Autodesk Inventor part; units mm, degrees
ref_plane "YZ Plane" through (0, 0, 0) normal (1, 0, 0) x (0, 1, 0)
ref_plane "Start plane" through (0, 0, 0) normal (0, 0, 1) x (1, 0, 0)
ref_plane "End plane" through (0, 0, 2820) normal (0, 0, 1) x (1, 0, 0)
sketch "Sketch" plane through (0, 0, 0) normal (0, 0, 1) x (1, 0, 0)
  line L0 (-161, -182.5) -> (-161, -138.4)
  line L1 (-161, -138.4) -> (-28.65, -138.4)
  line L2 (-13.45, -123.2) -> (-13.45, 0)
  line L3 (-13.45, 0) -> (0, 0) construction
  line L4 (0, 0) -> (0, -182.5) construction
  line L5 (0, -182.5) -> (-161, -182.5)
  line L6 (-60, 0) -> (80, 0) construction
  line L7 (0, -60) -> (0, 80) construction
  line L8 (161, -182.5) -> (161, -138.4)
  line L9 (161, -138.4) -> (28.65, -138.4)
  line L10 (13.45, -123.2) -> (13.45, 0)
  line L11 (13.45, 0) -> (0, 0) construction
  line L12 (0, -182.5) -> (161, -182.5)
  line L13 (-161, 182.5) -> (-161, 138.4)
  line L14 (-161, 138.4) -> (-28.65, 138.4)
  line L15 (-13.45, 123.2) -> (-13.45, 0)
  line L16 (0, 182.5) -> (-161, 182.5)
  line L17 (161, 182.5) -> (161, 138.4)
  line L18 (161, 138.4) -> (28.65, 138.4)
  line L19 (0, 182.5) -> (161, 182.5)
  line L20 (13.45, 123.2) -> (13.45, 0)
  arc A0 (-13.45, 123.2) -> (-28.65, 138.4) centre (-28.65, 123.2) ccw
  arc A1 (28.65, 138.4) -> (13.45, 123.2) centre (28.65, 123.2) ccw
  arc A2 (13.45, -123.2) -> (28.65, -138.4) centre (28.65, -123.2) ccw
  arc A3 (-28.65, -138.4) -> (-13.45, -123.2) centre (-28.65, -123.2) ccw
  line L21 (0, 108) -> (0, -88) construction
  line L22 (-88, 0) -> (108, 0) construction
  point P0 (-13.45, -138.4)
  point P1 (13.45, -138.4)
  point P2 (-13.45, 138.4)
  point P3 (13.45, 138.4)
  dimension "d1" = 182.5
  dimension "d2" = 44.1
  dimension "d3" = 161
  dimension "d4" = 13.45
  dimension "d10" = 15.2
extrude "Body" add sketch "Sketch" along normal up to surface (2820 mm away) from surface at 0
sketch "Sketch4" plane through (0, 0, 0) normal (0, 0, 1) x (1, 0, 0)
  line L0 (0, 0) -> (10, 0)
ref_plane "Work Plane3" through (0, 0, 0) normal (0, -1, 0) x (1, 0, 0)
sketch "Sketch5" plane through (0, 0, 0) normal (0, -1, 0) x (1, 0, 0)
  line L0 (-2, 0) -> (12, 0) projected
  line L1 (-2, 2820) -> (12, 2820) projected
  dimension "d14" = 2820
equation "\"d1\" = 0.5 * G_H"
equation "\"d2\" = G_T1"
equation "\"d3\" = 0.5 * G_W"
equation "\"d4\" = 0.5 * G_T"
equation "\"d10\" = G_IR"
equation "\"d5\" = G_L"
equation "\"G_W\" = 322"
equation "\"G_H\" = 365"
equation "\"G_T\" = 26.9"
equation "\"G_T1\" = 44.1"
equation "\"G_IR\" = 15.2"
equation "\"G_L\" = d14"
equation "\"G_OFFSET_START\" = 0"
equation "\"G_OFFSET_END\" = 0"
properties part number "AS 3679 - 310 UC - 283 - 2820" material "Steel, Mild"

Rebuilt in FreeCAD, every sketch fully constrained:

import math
import FreeCAD as App
import Part
import Sketcher
from FreeCAD import Vector

doc = App.newDocument("Part")
body = doc.addObject("PartDesign::Body", "Body")

sketch1 = doc.addObject("Sketcher::SketchObject", "Sketch")
body.addObject(sketch1)
sketch1.AttachmentSupport = (doc.XY_Plane, [""])
sketch1.MapMode = "FlatFace"
sketch1.addGeometry(Part.LineSegment(Vector(-161, -138, 0), Vector(-161, -182, 0)), False)
sketch1.addGeometry(Part.LineSegment(Vector(-161, -182, 0), Vector(161, -182, 0)), False)
sketch1.addGeometry(Part.LineSegment(Vector(161, -182, 0), Vector(161, -138, 0)), False)
sketch1.addGeometry(Part.LineSegment(Vector(161, -138, 0), Vector(29, -138, 0)), False)
sketch1.addGeometry(Part.ArcOfCircle(Part.Circle(Vector(29, -123, 0), Vector(0, 0, 1), 15), math.radians(180), math.radians(270)), False)
sketch1.addGeometry(Part.LineSegment(Vector(13, -123, 0), Vector(13, 123, 0)), False)
sketch1.addGeometry(Part.ArcOfCircle(Part.Circle(Vector(29, 123, 0), Vector(0, 0, 1), 15), math.radians(90), math.radians(180)), False)
sketch1.addGeometry(Part.LineSegment(Vector(29, 138, 0), Vector(161, 138, 0)), False)
sketch1.addGeometry(Part.LineSegment(Vector(161, 138, 0), Vector(161, 182, 0)), False)
sketch1.addGeometry(Part.LineSegment(Vector(161, 182, 0), Vector(-161, 182, 0)), False)
sketch1.addGeometry(Part.LineSegment(Vector(-161, 182, 0), Vector(-161, 138, 0)), False)
sketch1.addGeometry(Part.LineSegment(Vector(-161, 138, 0), Vector(-29, 138, 0)), False)
sketch1.addGeometry(Part.ArcOfCircle(Part.Circle(Vector(-29, 123, 0), Vector(0, 0, 1), 15), math.radians(0), math.radians(90)), False)
sketch1.addGeometry(Part.LineSegment(Vector(-13, 123, 0), Vector(-13, -123, 0)), False)
sketch1.addGeometry(Part.ArcOfCircle(Part.Circle(Vector(-29, -123, 0), Vector(0, 0, 1), 15), math.radians(-90), math.radians(0)), False)
sketch1.addGeometry(Part.LineSegment(Vector(-29, -138, 0), Vector(-161, -138, 0)), False)
sketch1.addConstraint(Sketcher.Constraint("Coincident", 0, 2, 1, 1))
sketch1.addConstraint(Sketcher.Constraint("Coincident", 1, 2, 2, 1))
sketch1.addConstraint(Sketcher.Constraint("Coincident", 2, 2, 3, 1))
sketch1.addConstraint(Sketcher.Constraint("Tangent", 3, 2, 4, 2))
sketch1.addConstraint(Sketcher.Constraint("Tangent", 4, 1, 5, 1))
sketch1.addConstraint(Sketcher.Constraint("Tangent", 5, 2, 6, 2))
sketch1.addConstraint(Sketcher.Constraint("Tangent", 6, 1, 7, 1))
sketch1.addConstraint(Sketcher.Constraint("Coincident", 7, 2, 8, 1))
sketch1.addConstraint(Sketcher.Constraint("Coincident", 8, 2, 9, 1))
sketch1.addConstraint(Sketcher.Constraint("Coincident", 9, 2, 10, 1))
sketch1.addConstraint(Sketcher.Constraint("Coincident", 10, 2, 11, 1))
sketch1.addConstraint(Sketcher.Constraint("Tangent", 11, 2, 12, 2))
sketch1.addConstraint(Sketcher.Constraint("Tangent", 12, 1, 13, 1))
sketch1.addConstraint(Sketcher.Constraint("Tangent", 13, 2, 14, 2))
sketch1.addConstraint(Sketcher.Constraint("Tangent", 14, 1, 15, 1))
sketch1.addConstraint(Sketcher.Constraint("Coincident", 15, 2, 0, 1))
sketch1.addConstraint(Sketcher.Constraint("Vertical", 0))
sketch1.addConstraint(Sketcher.Constraint("Horizontal", 1))
sketch1.addConstraint(Sketcher.Constraint("Vertical", 2))
sketch1.addConstraint(Sketcher.Constraint("Horizontal", 3))
sketch1.addConstraint(Sketcher.Constraint("Vertical", 5))
sketch1.addConstraint(Sketcher.Constraint("Horizontal", 7))
sketch1.addConstraint(Sketcher.Constraint("Vertical", 8))
sketch1.addConstraint(Sketcher.Constraint("Horizontal", 9))
sketch1.addConstraint(Sketcher.Constraint("Vertical", 10))
sketch1.addConstraint(Sketcher.Constraint("Horizontal", 11))
sketch1.addConstraint(Sketcher.Constraint("Vertical", 13))
sketch1.addConstraint(Sketcher.Constraint("Horizontal", 15))
sketch1.addConstraint(Sketcher.Constraint("Equal", 4, 6))
sketch1.addConstraint(Sketcher.Constraint("Equal", 6, 12))
sketch1.addConstraint(Sketcher.Constraint("Equal", 12, 14))
sketch1.addConstraint(Sketcher.Constraint("Symmetric", 4, 3, 12, 3, -1, 1))
sketch1.addConstraint(Sketcher.Constraint("Symmetric", 0, 2, 8, 2, -1, 1))
sketch1.addConstraint(Sketcher.Constraint("Symmetric", 7, 2, 10, 2, -2))
sketch1.addConstraint(Sketcher.Constraint("Symmetric", 2, 2, 15, 2, -2))
sketch1.addConstraint(Sketcher.Constraint("Radius", 4, 15.2))
sketch1.addConstraint(Sketcher.Constraint("DistanceY", 0, 2, 0, 1, 44.1))
sketch1.addConstraint(Sketcher.Constraint("DistanceX", 0, 2, -1, 1, 161.0))
sketch1.addConstraint(Sketcher.Constraint("DistanceY", 0, 2, -1, 1, 182.5))
sketch1.addConstraint(Sketcher.Constraint("DistanceX", -1, 1, 4, 1, 13.45))
pad1 = doc.addObject("PartDesign::Pad", "Pad")
body.addObject(pad1)
pad1.Profile = sketch1
pad1.Length = 2820

doc.recompute()
